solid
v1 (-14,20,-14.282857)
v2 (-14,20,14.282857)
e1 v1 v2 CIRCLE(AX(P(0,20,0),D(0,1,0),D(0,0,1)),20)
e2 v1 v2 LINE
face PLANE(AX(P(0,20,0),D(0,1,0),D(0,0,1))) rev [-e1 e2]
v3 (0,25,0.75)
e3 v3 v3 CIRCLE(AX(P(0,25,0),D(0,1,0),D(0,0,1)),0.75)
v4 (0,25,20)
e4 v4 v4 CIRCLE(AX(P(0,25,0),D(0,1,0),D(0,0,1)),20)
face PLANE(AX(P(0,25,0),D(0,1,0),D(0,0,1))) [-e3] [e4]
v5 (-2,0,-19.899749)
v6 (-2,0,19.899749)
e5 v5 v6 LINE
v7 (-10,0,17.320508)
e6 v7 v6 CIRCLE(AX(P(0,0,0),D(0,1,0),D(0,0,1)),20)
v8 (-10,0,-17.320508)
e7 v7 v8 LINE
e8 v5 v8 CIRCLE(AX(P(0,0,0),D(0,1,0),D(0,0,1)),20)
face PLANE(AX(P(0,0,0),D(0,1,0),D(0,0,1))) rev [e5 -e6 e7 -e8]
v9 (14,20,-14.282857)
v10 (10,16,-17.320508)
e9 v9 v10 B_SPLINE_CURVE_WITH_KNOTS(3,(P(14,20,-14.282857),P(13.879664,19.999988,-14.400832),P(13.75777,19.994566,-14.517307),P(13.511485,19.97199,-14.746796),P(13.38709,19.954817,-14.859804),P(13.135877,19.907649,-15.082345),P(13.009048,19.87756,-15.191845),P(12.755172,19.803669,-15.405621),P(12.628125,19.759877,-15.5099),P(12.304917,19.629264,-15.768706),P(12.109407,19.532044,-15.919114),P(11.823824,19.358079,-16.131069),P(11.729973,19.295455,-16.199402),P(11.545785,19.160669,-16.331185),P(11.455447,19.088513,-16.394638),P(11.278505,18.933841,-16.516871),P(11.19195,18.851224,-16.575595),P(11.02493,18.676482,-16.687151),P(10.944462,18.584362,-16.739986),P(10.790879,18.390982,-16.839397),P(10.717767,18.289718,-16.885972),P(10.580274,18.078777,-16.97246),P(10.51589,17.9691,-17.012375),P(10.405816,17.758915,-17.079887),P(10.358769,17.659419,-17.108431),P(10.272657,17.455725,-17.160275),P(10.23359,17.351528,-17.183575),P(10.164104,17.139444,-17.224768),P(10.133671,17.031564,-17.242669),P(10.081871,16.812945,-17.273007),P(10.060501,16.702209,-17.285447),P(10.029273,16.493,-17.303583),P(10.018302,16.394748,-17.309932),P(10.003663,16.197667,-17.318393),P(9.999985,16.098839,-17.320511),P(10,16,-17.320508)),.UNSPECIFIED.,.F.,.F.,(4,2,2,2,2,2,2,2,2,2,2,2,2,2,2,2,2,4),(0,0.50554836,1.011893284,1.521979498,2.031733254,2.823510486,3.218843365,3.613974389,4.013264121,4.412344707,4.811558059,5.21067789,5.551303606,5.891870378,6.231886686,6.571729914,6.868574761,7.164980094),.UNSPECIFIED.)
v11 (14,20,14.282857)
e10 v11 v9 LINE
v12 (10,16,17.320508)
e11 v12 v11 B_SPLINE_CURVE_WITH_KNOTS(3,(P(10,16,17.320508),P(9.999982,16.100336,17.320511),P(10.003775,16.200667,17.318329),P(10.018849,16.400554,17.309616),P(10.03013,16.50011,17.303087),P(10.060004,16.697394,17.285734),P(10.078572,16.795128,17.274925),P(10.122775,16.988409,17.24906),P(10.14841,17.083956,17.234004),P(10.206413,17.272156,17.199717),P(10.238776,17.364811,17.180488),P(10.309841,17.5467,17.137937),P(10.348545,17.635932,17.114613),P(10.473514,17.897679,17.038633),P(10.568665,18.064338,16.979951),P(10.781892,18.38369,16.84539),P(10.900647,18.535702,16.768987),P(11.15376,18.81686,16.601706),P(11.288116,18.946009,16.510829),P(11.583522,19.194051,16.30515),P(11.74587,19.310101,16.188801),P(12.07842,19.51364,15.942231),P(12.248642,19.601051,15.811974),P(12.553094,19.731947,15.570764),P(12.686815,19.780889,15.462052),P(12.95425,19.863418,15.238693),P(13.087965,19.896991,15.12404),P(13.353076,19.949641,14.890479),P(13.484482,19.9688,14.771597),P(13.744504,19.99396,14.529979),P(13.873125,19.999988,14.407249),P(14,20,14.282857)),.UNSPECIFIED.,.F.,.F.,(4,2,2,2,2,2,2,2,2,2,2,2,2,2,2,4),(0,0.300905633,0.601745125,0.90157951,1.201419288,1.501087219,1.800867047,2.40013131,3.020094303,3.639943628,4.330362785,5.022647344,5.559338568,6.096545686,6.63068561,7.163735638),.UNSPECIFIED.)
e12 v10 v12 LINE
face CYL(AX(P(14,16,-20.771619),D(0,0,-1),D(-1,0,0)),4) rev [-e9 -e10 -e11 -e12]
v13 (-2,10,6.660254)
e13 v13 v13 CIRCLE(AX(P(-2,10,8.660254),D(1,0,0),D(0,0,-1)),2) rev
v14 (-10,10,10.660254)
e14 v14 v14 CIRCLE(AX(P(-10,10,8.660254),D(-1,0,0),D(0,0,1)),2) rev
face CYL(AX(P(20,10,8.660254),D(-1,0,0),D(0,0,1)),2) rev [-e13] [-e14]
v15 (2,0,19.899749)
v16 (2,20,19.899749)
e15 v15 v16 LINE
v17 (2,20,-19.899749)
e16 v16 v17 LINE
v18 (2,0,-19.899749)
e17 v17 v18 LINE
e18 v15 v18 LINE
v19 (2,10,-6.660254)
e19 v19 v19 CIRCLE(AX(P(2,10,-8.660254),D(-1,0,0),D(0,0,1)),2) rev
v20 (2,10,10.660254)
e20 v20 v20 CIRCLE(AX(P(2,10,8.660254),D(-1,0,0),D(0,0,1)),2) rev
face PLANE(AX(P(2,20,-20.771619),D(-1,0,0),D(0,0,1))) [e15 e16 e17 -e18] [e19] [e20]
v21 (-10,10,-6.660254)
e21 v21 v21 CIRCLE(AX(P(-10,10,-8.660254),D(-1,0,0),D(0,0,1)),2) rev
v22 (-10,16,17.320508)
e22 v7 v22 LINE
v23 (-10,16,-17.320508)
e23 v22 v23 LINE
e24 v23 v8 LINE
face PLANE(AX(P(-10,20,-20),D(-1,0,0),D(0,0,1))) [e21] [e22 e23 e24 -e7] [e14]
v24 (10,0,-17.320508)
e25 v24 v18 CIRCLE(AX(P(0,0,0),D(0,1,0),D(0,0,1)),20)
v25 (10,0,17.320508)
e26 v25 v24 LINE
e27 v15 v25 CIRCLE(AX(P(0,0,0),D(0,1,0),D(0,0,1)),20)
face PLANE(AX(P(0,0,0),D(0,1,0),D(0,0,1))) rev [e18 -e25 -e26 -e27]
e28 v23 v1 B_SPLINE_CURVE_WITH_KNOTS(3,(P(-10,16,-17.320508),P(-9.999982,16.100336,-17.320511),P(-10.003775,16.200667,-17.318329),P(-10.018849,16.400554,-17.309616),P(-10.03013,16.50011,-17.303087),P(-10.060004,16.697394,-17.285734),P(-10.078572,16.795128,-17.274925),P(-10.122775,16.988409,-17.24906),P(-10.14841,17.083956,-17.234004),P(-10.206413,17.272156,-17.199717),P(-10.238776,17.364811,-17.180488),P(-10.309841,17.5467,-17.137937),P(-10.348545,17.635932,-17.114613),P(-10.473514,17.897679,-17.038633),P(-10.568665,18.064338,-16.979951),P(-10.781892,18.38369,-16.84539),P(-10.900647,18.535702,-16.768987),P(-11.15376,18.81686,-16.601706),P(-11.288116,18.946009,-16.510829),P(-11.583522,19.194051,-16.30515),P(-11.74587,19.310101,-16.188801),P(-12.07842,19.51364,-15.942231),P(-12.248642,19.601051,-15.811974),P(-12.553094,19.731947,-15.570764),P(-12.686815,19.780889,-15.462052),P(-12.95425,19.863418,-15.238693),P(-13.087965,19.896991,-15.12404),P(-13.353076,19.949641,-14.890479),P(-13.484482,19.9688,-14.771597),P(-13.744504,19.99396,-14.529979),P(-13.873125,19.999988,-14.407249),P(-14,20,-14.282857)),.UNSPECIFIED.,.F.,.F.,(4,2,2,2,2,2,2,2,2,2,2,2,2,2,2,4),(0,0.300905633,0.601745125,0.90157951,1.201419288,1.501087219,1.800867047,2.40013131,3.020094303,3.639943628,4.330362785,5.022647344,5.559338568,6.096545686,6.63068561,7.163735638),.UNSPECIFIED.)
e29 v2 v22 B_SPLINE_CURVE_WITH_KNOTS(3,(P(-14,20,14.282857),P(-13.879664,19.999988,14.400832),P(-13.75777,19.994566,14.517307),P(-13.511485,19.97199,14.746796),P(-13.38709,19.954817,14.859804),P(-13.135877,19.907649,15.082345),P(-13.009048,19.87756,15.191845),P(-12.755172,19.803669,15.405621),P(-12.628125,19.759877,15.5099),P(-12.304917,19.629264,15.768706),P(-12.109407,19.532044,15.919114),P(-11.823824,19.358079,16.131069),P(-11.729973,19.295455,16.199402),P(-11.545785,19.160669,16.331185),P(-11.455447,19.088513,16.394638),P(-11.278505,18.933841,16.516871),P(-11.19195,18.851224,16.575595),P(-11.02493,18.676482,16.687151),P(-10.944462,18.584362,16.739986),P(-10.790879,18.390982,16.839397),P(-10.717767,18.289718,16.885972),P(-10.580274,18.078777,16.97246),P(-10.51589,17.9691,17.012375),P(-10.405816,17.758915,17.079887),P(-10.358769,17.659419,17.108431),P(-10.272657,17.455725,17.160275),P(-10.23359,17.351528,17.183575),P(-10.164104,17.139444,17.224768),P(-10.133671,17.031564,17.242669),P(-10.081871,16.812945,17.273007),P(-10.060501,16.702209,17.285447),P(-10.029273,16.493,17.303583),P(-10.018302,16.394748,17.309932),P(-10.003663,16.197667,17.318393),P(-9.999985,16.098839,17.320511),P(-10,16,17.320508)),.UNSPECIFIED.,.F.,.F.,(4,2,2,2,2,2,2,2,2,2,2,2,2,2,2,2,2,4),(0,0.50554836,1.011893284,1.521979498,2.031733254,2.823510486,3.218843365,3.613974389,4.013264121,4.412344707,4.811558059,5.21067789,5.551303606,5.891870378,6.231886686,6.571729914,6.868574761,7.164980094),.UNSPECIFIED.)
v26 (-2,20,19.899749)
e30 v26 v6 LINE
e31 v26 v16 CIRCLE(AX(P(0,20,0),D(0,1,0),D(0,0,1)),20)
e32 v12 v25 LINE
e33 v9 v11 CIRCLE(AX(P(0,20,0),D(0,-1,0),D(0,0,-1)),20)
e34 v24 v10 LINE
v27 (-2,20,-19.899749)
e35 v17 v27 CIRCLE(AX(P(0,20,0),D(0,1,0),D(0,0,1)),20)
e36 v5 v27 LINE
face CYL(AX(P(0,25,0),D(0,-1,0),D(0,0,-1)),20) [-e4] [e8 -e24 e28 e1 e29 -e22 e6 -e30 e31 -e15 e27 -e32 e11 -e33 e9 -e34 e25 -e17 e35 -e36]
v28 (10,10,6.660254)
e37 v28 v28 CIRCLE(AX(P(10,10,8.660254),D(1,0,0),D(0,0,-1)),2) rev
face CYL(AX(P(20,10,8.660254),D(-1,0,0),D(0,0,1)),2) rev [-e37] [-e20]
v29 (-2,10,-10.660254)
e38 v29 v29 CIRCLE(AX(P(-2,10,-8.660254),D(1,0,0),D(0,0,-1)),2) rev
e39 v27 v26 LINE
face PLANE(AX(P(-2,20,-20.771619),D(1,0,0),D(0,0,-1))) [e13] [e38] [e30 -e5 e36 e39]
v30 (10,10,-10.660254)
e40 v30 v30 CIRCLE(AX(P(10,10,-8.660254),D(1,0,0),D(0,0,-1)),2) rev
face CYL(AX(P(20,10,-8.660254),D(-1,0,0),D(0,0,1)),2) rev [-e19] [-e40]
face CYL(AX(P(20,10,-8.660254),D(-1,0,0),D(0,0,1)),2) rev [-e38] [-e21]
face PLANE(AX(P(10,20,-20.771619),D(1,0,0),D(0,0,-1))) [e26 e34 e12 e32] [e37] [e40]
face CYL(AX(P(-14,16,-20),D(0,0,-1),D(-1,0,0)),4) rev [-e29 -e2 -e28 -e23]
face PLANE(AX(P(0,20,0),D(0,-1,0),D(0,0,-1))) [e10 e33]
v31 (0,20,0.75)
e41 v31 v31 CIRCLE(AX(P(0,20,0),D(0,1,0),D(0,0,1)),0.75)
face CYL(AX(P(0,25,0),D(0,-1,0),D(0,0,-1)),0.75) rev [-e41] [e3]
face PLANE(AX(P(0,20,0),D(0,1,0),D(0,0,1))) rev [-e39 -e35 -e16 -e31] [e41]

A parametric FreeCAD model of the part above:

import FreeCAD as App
import Part
import Sketcher
Q = App.Units.Quantity


def edges_at(feature, points):
    """Names of the edges that pass closest to the given points."""
    edges = feature.Shape.Edges
    near = lambda p: min(range(len(edges)), key=lambda i: edges[i].distToShape(Part.Vertex(*p))[0])
    return sorted({f"Edge{near(p) + 1}" for p in points})


def add_polygon(sketch, points):
    """Adds a closed chain of lines whose ends are joined by coincident constraints."""
    first, n = sketch.GeometryCount, len(points)
    for a, b in zip(points, points[1:] + points[:1]):
        sketch.addGeometry(Part.LineSegment(App.Vector(*a, 0), App.Vector(*b, 0)), False)
    for i in range(n):
        sketch.addConstraint(Sketcher.Constraint("Coincident", first + i, 2, first + (i + 1) % n, 1))

doc = App.newDocument("Part")
body = doc.addObject("PartDesign::Body", "Body")

sketch1 = body.newObject("Sketcher::SketchObject", "Sketch")
sketch1.AttachmentSupport = (doc.getObject("XZ_Plane"), [""])
sketch1.MapMode = "FlatFace"
sketch1.addGeometry([
    Part.Circle(App.Vector(0, 0, 0), App.Vector(0, 0, 1), 20),
    Part.Circle(App.Vector(0, 0, 0), App.Vector(0, 0, 1), 0.8),
], False)
sketch1.addConstraint([
    Sketcher.Constraint("Coincident", 0, 3, -1, 1),
    Sketcher.Constraint("Coincident", 1, 3, -1, 1),
    Sketcher.Constraint("Diameter", 0, Q("40 mm")),
    Sketcher.Constraint("Diameter", 1, Q("1.5 mm")),
])
pad1 = body.newObject("PartDesign::Pad", "Pad")
pad1.Profile = sketch1
pad1.Length = 25
pad1.Reversed = True

sketch2 = body.newObject("Sketcher::SketchObject", "Sketch001")
sketch2.AttachmentSupport = (doc.getObject("XZ_Plane"), [""])
sketch2.MapMode = "FlatFace"
add_polygon(sketch2, [(-2, -20.8), (-2, 21.3), (2, 21.3), (2, -20.8)])
add_polygon(sketch2, [(-25.1, -20), (-25.1, 20), (-10, 20), (-10, -20)])
add_polygon(sketch2, [(10, -20.8), (10, 21.3), (22.3, 21.3), (22.3, -20.8)])
sketch2.addConstraint([
    Sketcher.Constraint("Vertical", 0),
    Sketcher.Constraint("Horizontal", 1),
    Sketcher.Constraint("Vertical", 2),
    Sketcher.Constraint("Horizontal", 3),
    Sketcher.Constraint("Vertical", 4),
    Sketcher.Constraint("Horizontal", 5),
    Sketcher.Constraint("Vertical", 6),
    Sketcher.Constraint("Horizontal", 7),
    Sketcher.Constraint("Vertical", 8),
    Sketcher.Constraint("Horizontal", 9),
    Sketcher.Constraint("Vertical", 10),
    Sketcher.Constraint("Horizontal", 11),
    Sketcher.Constraint("Horizontal", 1, 2, 8, 2),
    Sketcher.Constraint("Horizontal", 3, 2, 10, 2),
    Sketcher.Constraint("DistanceX", 1, 1, 1, 2, Q("4 mm")),
    Sketcher.Constraint("DistanceY", 4, 1, 4, 2, Q("40 mm")),
    Sketcher.Constraint("DistanceX", 0, 2, -1, 1, Q("2 mm")),
    Sketcher.Constraint("DistanceY", -1, 1, 4, 2, Q("20 mm")),
    Sketcher.Constraint("DistanceX", 5, 2, -1, 1, Q("10 mm")),
    Sketcher.Constraint("DistanceX", -1, 1, 8, 2, Q("10 mm")),
    Sketcher.Constraint("DistanceX", 9, 1, 9, 2, Q("12.26347 mm")),
    Sketcher.Constraint("DistanceY", 0, 1, 0, 2, Q("42.071331 mm")),
    Sketcher.Constraint("DistanceX", 5, 1, 5, 2, Q("15.138638 mm")),
    Sketcher.Constraint("DistanceY", -1, 1, 0, 2, Q("21.299711 mm")),
])
pocket1 = body.newObject("PartDesign::Pocket", "Pocket")
pocket1.Profile = sketch2
pocket1.Length = 20

sketch3 = body.newObject("Sketcher::SketchObject", "Sketch002")
sketch3.AttachmentSupport = (doc.getObject("YZ_Plane"), [""])
sketch3.MapMode = "FlatFace"
sketch3.addGeometry([
    Part.Circle(App.Vector(10, 8.7, 0), App.Vector(0, 0, 1), 2),
    Part.Circle(App.Vector(10, -8.7, 0), App.Vector(0, 0, 1), 2),
], False)
sketch3.addConstraint([
    Sketcher.Constraint("Equal", 0, 1),
    Sketcher.Constraint("Symmetric", 0, 3, 1, 3, -1),
    Sketcher.Constraint("Diameter", 0, Q("4 mm")),
    Sketcher.Constraint("DistanceX", -1, 1, 0, 3, Q("10 mm")),
    Sketcher.Constraint("DistanceY", 1, 3, 0, 3, Q("17.320508 mm")),
])
pocket2 = body.newObject("PartDesign::Pocket", "Pocket001")
pocket2.Profile = sketch3
pocket2.Type = "ThroughAll"
pocket2.Midplane = True
doc.recompute()

fillet = body.newObject("PartDesign::Fillet", "Fillet")
fillet.Base = (pocket2, edges_at(pocket2, [(-10, 20, 0), (10, 20, 0)]))
fillet.Radius = 4

doc.recompute()
